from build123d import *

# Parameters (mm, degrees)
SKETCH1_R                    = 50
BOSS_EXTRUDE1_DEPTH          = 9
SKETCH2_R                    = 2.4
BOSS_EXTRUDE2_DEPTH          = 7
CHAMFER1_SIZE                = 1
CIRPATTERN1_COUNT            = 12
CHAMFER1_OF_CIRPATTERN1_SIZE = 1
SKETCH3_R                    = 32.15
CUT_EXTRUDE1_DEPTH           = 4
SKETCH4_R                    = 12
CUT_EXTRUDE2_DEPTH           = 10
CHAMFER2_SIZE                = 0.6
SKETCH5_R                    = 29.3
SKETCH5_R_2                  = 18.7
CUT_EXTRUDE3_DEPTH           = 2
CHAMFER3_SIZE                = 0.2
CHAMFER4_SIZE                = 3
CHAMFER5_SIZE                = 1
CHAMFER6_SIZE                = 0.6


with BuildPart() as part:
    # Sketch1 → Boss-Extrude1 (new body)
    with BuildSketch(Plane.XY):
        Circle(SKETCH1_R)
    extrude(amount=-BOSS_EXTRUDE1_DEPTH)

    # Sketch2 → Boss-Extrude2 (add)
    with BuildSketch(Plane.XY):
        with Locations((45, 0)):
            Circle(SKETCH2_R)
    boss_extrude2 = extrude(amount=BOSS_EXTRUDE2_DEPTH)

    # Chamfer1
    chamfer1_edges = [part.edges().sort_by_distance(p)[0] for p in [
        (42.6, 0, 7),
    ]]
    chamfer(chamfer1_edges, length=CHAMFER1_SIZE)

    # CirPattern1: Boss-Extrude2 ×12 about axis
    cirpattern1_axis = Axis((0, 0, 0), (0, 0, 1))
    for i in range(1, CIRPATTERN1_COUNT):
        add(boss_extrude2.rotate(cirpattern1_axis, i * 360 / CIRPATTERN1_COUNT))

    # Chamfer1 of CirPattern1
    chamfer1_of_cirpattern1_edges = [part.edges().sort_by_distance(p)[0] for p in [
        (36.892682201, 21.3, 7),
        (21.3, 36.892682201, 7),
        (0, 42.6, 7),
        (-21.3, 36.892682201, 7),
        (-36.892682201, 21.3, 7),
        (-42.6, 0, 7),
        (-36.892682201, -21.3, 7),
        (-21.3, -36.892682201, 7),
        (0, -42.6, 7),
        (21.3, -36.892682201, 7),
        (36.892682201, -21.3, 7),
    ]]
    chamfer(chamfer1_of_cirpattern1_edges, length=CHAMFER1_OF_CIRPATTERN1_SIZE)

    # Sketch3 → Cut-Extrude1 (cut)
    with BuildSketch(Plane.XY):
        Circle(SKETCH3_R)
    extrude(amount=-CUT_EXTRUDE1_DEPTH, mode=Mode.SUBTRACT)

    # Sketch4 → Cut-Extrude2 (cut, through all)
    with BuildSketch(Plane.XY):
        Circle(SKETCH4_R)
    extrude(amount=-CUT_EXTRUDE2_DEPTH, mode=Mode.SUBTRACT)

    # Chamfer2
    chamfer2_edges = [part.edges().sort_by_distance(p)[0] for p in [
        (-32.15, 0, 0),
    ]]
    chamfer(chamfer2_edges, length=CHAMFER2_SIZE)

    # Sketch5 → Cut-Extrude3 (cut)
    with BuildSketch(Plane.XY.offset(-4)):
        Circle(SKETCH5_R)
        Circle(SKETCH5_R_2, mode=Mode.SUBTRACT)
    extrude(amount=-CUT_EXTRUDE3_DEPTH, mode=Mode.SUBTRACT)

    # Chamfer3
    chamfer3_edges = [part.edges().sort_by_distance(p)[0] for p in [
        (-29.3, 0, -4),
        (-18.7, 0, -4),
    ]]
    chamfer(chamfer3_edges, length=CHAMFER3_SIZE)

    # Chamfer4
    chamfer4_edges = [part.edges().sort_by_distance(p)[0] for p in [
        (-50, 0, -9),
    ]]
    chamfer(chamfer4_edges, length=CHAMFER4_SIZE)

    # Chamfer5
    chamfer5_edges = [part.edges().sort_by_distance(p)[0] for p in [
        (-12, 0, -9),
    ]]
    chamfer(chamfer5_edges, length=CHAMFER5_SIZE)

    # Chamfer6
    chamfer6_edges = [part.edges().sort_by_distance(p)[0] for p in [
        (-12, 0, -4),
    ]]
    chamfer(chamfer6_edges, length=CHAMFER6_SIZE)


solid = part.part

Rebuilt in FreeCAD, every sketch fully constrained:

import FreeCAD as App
import Part
import Sketcher
Q = App.Units.Quantity


def edges_at(feature, points):
    """Names of the edges that pass closest to the given points."""
    edges = feature.Shape.Edges
    near = lambda p: min(range(len(edges)), key=lambda i: edges[i].distToShape(Part.Vertex(*p))[0])
    return sorted({f"Edge{near(p) + 1}" for p in points})

doc = App.newDocument("Part")
body = doc.addObject("PartDesign::Body", "Body")

# Sketch on XY plane
sketch1 = body.newObject("Sketcher::SketchObject", "Sketch")
sketch1.AttachmentSupport = (doc.getObject("XY_Plane"), [""])
sketch1.MapMode = "FlatFace"
sketch1.addGeometry(Part.Circle(App.Vector(0, 0, 0), App.Vector(0, 0, 1), 50), False)
sketch1.addConstraint([
    Sketcher.Constraint("Coincident", 0, 3, -1, 1),
    Sketcher.Constraint("Diameter", 0, Q("100 mm")),
])
pad1 = body.newObject("PartDesign::Pad", "Pad")
pad1.Profile = sketch1
pad1.Length = 9
pad1.Reversed = True

# Sketch on XY plane
sketch2 = body.newObject("Sketcher::SketchObject", "Sketch001")
sketch2.AttachmentSupport = (doc.getObject("XY_Plane"), [""])
sketch2.MapMode = "FlatFace"
sketch2.addGeometry(Part.Circle(App.Vector(45, 0, 0), App.Vector(0, 0, 1), 2.4), False)
sketch2.addConstraint([
    Sketcher.Constraint("PointOnObject", 0, 3, -1),
    Sketcher.Constraint("Diameter", 0, Q("4.8 mm")),
    Sketcher.Constraint("DistanceX", -1, 1, 0, 3, Q("45 mm")),
])
pad2 = body.newObject("PartDesign::Pad", "Pad001")
pad2.Profile = sketch2
pad2.Length = 7
doc.recompute()

chamfer = body.newObject("PartDesign::Chamfer", "Chamfer")
chamfer.Base = (pad2, edges_at(pad2, [(42.6, 0, 7)]))
chamfer.Size = 1
doc.recompute()

polarpattern = body.newObject("PartDesign::PolarPattern", "PolarPattern")
polarpattern.Originals = [pad2]
polarpattern.Axis = (doc.getObject("Z_Axis"), [""])
polarpattern.Angle = 360
polarpattern.Occurrences = 12
body.Tip = polarpattern
doc.recompute()

chamfer2 = body.newObject("PartDesign::Chamfer", "Chamfer001")
chamfer2.Base = (polarpattern, edges_at(polarpattern, [
    (36.893, 21.3, 7),
    (21.3, 36.893, 7),
    (0, 42.6, 7),
    (-21.3, 36.893, 7),
    (-36.893, 21.3, 7),
    (-42.6, 0, 7),
    (-36.893, -21.3, 7),
    (-21.3, -36.893, 7),
    (0, -42.6, 7),
    (21.3, -36.893, 7),
    (36.893, -21.3, 7),
]))
chamfer2.Size = 1

# Sketch on XY plane
sketch3 = body.newObject("Sketcher::SketchObject", "Sketch002")
sketch3.AttachmentSupport = (doc.getObject("XY_Plane"), [""])
sketch3.MapMode = "FlatFace"
sketch3.addGeometry(Part.Circle(App.Vector(0, 0, 0), App.Vector(0, 0, 1), 32.15), False)
sketch3.addConstraint([
    Sketcher.Constraint("Coincident", 0, 3, -1, 1),
    Sketcher.Constraint("Diameter", 0, Q("64.3 mm")),
])
pocket1 = body.newObject("PartDesign::Pocket", "Pocket")
pocket1.Profile = sketch3
pocket1.Length = 4

# Sketch on XY plane
sketch4 = body.newObject("Sketcher::SketchObject", "Sketch003")
sketch4.AttachmentSupport = (doc.getObject("XY_Plane"), [""])
sketch4.MapMode = "FlatFace"
sketch4.addGeometry(Part.Circle(App.Vector(0, 0, 0), App.Vector(0, 0, 1), 12), False)
sketch4.addConstraint([
    Sketcher.Constraint("Coincident", 0, 3, -1, 1),
    Sketcher.Constraint("Diameter", 0, Q("24 mm")),
])
pocket2 = body.newObject("PartDesign::Pocket", "Pocket001")
pocket2.Profile = sketch4
pocket2.Type = "ThroughAll"
doc.recompute()

chamfer3 = body.newObject("PartDesign::Chamfer", "Chamfer002")
chamfer3.Base = (pocket2, edges_at(pocket2, [(-32.15, 0, 0)]))
chamfer3.Size = 0.6

# Sketch on XY plane
sketch5 = body.newObject("Sketcher::SketchObject", "Sketch004")
sketch5.AttachmentSupport = (doc.getObject("XY_Plane"), [""])
sketch5.MapMode = "FlatFace"
sketch5.AttachmentOffset = App.Placement(App.Vector(0, 0, -4), App.Rotation())
sketch5.addGeometry([
    Part.Circle(App.Vector(0, 0, 0), App.Vector(0, 0, 1), 29.3),
    Part.Circle(App.Vector(0, 0, 0), App.Vector(0, 0, 1), 18.7),
], False)
sketch5.addConstraint([
    Sketcher.Constraint("Coincident", 0, 3, -1, 1),
    Sketcher.Constraint("Coincident", 1, 3, -1, 1),
    Sketcher.Constraint("Diameter", 0, Q("58.6 mm")),
    Sketcher.Constraint("Diameter", 1, Q("37.4 mm")),
])
pocket3 = body.newObject("PartDesign::Pocket", "Pocket002")
pocket3.Profile = sketch5
pocket3.Length = 2
doc.recompute()

chamfer4 = body.newObject("PartDesign::Chamfer", "Chamfer003")
chamfer4.Base = (pocket3, edges_at(pocket3, [(-29.3, 0, -4), (-18.7, 0, -4)]))
chamfer4.Size = 0.2
doc.recompute()

chamfer5 = body.newObject("PartDesign::Chamfer", "Chamfer004")
chamfer5.Base = (chamfer4, edges_at(chamfer4, [(-50, 0, -9)]))
chamfer5.Size = 3
doc.recompute()

chamfer6 = body.newObject("PartDesign::Chamfer", "Chamfer005")
chamfer6.Base = (chamfer5, edges_at(chamfer5, [(-12, 0, -9)]))
chamfer6.Size = 1
doc.recompute()

chamfer7 = body.newObject("PartDesign::Chamfer", "Chamfer006")
chamfer7.Base = (chamfer6, edges_at(chamfer6, [(-12, 0, -4)]))
chamfer7.Size = 0.6

doc.recompute()
